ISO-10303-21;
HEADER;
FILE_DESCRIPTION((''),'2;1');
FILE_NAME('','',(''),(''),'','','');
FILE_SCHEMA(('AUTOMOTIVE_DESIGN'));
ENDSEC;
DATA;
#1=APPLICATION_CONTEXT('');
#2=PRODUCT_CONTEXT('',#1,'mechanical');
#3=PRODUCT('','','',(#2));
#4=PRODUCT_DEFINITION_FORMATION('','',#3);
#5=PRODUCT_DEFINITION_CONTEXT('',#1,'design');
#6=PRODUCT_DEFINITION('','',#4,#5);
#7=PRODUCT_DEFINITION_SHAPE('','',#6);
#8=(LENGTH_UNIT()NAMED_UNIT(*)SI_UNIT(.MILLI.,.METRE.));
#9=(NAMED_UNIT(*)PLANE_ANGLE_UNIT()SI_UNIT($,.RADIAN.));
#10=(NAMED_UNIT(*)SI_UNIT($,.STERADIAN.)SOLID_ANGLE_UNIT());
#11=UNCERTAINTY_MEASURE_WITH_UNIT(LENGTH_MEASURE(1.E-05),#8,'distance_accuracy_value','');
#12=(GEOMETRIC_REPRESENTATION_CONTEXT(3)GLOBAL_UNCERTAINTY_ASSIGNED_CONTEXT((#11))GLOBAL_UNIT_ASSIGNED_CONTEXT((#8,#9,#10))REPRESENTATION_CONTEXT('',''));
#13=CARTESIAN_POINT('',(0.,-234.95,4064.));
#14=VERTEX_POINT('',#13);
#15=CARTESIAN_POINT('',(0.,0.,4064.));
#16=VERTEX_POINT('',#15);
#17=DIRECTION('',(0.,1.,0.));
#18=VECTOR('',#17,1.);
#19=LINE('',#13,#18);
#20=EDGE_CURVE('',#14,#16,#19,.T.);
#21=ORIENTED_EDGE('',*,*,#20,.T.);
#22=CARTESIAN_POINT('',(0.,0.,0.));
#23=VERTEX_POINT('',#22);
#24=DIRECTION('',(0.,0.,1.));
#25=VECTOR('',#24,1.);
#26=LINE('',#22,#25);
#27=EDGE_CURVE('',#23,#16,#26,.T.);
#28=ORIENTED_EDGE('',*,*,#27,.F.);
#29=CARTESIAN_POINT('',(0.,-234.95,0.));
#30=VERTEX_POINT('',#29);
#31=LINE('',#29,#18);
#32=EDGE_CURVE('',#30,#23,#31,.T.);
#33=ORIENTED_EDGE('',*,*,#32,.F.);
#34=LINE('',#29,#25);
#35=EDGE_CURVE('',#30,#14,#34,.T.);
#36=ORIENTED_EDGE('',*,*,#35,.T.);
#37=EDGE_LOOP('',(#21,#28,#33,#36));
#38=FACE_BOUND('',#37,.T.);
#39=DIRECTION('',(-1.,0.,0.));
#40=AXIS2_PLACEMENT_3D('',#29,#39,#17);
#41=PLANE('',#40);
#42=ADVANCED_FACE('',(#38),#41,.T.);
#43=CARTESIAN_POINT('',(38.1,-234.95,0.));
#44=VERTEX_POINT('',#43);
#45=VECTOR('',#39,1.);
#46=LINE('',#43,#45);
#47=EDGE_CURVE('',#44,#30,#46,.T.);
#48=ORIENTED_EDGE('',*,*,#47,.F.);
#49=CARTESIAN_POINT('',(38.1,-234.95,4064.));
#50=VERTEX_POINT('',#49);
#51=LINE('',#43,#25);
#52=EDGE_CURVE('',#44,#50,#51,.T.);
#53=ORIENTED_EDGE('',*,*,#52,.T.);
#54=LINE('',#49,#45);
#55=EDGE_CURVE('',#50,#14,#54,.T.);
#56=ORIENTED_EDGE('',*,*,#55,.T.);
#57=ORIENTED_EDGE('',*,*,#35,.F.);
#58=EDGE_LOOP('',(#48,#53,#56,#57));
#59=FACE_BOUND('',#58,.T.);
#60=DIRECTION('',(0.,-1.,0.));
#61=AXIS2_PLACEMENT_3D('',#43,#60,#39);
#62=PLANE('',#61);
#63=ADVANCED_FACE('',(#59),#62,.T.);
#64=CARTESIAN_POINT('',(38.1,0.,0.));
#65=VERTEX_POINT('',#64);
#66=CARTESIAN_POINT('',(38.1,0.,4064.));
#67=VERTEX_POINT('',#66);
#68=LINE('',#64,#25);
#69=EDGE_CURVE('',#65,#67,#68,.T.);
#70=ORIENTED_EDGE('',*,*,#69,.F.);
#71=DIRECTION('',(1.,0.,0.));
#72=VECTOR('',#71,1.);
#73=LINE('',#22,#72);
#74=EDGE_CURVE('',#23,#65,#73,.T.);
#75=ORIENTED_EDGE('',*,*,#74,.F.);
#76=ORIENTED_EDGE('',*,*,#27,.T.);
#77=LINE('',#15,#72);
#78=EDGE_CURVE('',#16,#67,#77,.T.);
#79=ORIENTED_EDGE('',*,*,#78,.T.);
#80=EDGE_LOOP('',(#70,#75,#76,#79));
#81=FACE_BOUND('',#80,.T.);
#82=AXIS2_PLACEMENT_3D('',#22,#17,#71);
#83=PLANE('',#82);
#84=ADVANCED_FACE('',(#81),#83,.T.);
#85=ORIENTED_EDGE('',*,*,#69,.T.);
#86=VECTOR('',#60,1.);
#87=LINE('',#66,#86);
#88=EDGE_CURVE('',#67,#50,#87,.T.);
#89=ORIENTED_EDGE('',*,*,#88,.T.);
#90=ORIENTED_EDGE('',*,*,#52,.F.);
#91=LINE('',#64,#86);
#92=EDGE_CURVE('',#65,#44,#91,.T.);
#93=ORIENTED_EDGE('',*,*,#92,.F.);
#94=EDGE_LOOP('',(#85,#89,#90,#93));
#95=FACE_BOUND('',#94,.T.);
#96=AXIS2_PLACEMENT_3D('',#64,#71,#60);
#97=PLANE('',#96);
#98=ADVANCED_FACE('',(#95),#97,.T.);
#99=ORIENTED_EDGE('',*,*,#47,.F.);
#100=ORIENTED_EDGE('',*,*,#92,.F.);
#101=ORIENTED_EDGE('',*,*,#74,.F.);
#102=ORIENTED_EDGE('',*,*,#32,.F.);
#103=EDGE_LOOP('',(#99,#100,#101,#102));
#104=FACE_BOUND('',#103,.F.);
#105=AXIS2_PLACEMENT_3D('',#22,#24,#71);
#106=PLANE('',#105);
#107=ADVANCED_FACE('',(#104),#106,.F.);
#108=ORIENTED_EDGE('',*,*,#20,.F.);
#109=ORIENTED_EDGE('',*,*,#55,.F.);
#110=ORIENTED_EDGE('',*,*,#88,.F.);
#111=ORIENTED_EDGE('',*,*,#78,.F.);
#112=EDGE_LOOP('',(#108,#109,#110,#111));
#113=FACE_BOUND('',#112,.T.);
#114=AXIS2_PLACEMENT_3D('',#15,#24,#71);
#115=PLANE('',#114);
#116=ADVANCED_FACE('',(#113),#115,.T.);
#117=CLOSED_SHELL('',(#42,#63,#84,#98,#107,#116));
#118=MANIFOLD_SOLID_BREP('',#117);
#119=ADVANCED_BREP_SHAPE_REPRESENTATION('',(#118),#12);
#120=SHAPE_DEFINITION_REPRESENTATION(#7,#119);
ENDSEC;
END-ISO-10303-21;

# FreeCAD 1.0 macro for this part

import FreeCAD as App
import Part
import Sketcher
Q = App.Units.Quantity


def add_polygon(sketch, points):
    """Adds a closed chain of lines whose ends are joined by coincident constraints."""
    first, n = sketch.GeometryCount, len(points)
    for a, b in zip(points, points[1:] + points[:1]):
        sketch.addGeometry(Part.LineSegment(App.Vector(*a, 0), App.Vector(*b, 0)), False)
    for i in range(n):
        sketch.addConstraint(Sketcher.Constraint("Coincident", first + i, 2, first + (i + 1) % n, 1))

doc = App.newDocument("Part")
params = doc.addObject("Spreadsheet::Sheet", "Params")
for row, (alias, value) in enumerate([
    ("sketch1_width", "1.5 in"),
    ("sketch1_height", "9.25 in"),
    ("pad1_length", "160 in"),
], start=1):
    params.set(f"A{row}", alias)
    params.set(f"B{row}", "=" + value)
    params.setAlias(f"B{row}", alias)

body = doc.addObject("PartDesign::Body", "Body")

# Sketch on XY plane
sketch1 = doc.addObject("Sketcher::SketchObject", "Sketch")
body.addObject(sketch1)
sketch1.AttachmentSupport = (doc.XY_Plane, [""])
sketch1.MapMode = "FlatFace"
add_polygon(sketch1, [(38.1, 0), (0, 0), (0, -234.95), (38.1, -234.95)])  # lines 0-3
sketch1.addConstraint(Sketcher.Constraint("Horizontal", 0))
sketch1.addConstraint(Sketcher.Constraint("Vertical", 1))
sketch1.addConstraint(Sketcher.Constraint("Horizontal", 2))
sketch1.addConstraint(Sketcher.Constraint("Vertical", 3))
sketch1.addConstraint(Sketcher.Constraint("Coincident", 0, 2, -1, 1))
sketch1.addConstraint(Sketcher.Constraint("DistanceX", 0, 2, 0, 1, Q("1.5 in")))
sketch1.addConstraint(Sketcher.Constraint("DistanceY", 1, 2, 1, 1, Q("9.25 in")))
sketch1.setExpression("Constraints[9]", "Params.sketch1_width")
sketch1.setExpression("Constraints[10]", "Params.sketch1_height")
pad1 = doc.addObject("PartDesign::Pad", "Pad")
body.addObject(pad1)
pad1.Profile = sketch1
pad1.setExpression("Length", "Params.pad1_length")

doc.recompute()
